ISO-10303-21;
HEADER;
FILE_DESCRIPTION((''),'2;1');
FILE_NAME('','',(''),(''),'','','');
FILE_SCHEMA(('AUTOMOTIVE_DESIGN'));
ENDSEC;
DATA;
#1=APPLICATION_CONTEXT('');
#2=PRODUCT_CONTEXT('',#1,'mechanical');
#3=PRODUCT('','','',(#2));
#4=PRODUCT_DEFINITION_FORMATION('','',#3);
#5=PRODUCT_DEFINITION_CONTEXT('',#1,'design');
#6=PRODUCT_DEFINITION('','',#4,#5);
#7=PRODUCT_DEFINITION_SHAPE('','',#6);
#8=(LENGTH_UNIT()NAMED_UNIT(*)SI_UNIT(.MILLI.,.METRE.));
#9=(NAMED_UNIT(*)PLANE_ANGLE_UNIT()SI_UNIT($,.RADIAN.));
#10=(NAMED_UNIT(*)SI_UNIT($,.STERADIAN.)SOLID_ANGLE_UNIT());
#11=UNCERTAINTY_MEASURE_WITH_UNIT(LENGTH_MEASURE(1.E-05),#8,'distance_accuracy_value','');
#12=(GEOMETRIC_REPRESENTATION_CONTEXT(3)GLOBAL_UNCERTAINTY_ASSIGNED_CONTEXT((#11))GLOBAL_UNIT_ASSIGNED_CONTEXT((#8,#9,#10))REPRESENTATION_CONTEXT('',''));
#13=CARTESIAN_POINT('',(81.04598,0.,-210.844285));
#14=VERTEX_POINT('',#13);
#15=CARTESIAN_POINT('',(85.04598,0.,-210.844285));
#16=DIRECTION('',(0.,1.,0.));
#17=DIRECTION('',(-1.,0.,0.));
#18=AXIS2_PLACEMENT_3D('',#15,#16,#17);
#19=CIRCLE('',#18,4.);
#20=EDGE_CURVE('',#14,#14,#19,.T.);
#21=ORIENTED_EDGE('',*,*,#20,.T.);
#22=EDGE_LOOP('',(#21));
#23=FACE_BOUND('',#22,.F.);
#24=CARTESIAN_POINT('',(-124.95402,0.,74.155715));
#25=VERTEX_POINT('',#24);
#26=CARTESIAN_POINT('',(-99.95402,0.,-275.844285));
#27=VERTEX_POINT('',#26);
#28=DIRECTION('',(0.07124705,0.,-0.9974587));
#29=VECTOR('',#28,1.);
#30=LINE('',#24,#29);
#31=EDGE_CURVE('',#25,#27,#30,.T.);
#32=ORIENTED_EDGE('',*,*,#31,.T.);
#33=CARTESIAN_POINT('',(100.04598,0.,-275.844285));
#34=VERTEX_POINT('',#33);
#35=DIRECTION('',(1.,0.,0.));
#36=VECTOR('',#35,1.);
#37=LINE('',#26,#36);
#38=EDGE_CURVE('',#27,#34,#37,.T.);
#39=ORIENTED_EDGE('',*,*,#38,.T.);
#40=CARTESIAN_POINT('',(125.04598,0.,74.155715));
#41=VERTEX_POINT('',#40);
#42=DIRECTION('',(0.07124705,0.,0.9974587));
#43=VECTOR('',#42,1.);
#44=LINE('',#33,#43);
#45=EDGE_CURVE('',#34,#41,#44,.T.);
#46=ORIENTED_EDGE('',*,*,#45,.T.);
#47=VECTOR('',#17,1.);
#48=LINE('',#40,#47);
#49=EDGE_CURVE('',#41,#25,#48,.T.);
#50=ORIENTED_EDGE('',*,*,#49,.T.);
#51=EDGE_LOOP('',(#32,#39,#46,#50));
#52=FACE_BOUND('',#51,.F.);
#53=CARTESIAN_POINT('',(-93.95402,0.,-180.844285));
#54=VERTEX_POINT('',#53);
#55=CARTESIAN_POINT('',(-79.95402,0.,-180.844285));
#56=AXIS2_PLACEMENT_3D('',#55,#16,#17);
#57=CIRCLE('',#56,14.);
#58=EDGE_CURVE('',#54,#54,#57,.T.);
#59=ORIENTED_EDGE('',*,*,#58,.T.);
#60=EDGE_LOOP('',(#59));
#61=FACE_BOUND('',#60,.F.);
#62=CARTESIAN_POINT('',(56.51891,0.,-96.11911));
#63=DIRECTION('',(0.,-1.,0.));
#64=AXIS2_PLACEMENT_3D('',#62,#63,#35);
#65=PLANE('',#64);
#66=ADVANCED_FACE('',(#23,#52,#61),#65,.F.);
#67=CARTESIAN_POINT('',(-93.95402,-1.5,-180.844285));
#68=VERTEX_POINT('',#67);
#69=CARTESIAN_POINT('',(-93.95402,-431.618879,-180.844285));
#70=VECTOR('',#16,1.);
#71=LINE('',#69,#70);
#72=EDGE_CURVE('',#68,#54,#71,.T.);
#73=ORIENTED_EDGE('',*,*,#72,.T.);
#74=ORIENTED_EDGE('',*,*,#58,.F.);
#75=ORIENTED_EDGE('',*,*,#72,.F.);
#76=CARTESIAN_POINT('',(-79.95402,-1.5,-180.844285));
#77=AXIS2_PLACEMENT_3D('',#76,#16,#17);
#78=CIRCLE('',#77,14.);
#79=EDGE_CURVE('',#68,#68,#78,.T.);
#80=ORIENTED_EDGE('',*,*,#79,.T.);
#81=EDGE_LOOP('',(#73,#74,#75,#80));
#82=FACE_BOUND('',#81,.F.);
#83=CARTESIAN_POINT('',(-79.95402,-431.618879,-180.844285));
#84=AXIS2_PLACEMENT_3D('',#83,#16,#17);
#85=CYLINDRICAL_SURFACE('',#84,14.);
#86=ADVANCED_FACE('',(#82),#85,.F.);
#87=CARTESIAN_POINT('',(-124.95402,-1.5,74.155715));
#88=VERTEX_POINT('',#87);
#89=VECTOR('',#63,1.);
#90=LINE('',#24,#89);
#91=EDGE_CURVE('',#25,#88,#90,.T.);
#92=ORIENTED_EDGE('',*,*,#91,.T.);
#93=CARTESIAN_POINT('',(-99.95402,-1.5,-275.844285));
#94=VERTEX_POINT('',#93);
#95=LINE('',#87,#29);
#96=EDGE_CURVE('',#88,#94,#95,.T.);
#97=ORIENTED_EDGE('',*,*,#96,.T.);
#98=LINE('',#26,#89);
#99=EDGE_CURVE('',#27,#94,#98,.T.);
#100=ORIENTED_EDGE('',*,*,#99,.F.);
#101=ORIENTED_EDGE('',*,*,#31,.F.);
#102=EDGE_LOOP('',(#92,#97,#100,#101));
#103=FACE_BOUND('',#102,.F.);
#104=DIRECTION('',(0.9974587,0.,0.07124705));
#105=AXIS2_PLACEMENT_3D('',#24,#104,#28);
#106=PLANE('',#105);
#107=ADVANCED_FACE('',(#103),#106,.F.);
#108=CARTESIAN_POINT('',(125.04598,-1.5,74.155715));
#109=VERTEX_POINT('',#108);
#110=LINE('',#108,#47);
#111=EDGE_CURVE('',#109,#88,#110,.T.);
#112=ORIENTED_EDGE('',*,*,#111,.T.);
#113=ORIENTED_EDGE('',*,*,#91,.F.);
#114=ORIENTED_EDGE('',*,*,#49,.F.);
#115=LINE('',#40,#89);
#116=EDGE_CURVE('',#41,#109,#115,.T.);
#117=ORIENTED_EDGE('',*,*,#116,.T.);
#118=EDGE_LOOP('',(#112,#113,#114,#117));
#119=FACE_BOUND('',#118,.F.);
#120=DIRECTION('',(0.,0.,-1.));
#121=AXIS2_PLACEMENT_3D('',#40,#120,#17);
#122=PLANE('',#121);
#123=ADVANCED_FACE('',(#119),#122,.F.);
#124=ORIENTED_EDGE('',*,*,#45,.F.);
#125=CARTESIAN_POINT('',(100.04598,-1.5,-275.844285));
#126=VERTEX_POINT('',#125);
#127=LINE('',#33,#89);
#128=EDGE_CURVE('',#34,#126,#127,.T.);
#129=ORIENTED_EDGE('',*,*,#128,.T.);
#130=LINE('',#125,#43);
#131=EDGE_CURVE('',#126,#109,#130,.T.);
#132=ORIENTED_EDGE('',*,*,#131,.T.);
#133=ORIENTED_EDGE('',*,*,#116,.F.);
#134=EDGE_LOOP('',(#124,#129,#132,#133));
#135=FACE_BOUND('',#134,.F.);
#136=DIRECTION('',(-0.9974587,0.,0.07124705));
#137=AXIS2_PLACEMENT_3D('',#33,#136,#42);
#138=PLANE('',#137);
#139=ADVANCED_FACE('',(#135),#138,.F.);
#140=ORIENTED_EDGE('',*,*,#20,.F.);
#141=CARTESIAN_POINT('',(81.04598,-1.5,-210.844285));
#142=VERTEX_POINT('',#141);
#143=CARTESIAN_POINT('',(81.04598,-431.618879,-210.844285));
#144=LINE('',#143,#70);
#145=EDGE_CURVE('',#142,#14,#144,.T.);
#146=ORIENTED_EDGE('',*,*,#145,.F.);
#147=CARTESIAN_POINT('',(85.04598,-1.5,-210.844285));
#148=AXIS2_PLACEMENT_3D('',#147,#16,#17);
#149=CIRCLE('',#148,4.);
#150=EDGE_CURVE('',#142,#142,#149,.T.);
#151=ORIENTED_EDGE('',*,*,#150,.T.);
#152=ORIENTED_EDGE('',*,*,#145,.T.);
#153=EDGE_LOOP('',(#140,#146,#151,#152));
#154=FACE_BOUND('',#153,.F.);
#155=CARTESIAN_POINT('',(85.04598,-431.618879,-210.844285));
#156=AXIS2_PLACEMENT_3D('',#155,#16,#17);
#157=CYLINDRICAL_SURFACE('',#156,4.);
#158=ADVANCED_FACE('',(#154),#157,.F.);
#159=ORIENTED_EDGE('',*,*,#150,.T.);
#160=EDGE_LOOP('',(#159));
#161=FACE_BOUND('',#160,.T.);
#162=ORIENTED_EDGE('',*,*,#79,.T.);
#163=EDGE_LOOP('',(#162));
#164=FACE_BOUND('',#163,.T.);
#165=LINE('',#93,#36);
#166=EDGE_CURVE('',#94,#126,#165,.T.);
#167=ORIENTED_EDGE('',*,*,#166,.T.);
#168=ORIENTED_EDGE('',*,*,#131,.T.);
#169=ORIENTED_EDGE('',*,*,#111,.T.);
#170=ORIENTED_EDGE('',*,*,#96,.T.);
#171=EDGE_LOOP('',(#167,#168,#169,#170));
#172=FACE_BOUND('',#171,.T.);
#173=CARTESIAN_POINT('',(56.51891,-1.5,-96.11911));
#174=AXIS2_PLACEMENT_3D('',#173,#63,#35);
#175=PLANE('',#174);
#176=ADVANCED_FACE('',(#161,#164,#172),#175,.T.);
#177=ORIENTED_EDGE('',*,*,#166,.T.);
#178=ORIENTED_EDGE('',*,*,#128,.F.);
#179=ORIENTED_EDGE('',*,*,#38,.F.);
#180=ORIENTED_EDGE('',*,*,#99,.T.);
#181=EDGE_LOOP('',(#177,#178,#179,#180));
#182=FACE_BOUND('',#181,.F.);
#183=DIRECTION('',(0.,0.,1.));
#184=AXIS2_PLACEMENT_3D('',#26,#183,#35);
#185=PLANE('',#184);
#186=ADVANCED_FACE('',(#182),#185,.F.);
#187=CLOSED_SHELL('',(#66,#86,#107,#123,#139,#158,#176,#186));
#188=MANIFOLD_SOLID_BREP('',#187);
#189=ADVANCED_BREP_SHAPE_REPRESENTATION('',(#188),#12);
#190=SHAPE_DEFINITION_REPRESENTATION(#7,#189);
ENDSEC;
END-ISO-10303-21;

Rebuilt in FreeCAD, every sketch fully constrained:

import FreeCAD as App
import Part
import Sketcher
from FreeCAD import Vector


def add_polygon(sketch, points):
    """Adds a closed chain of lines whose ends are joined by coincident constraints."""
    first, n = sketch.GeometryCount, len(points)
    for a, b in zip(points, points[1:] + points[:1]):
        sketch.addGeometry(Part.LineSegment(App.Vector(*a, 0), App.Vector(*b, 0)), False)
    for i in range(n):
        sketch.addConstraint(Sketcher.Constraint("Coincident", first + i, 2, first + (i + 1) % n, 1))

doc = App.newDocument("Part")
body = doc.addObject("PartDesign::Body", "Body")

# Sketch on XZ plane
sketch1 = body.newObject("Sketcher::SketchObject", "Sketch")
sketch1.AttachmentSupport = (doc.getObject("XZ_Plane"), [""])
sketch1.MapMode = "FlatFace"
add_polygon(sketch1, [(125, 74), (-125, 74), (-100, -276), (100, -276)])  # lines 0-3
sketch1.addConstraint([
    Sketcher.Constraint("Horizontal", 0),
    Sketcher.Constraint("Horizontal", 2),
    Sketcher.Constraint("Equal", 1, 3),
    Sketcher.Constraint("DistanceX", 0, 2, 0, 1, 250.0),
    Sketcher.Constraint("DistanceX", 2, 1, 2, 2, 200.0),
    Sketcher.Constraint("DistanceY", 1, 2, 0, 2, 350.0),
    Sketcher.Constraint("DistanceX", 0, 2, -1, 1, 124.95402),
    Sketcher.Constraint("DistanceY", -1, 1, 0, 2, 74.155715),
])
pad1 = body.newObject("PartDesign::Pad", "Pad")
pad1.Profile = sketch1
pad1.Length = 1.5

# Sketch on XZ plane
sketch2 = body.newObject("Sketcher::SketchObject", "Sketch001")
sketch2.AttachmentSupport = (doc.getObject("XZ_Plane"), [""])
sketch2.MapMode = "FlatFace"
sketch2.AttachmentOffset = App.Placement(Vector(0, 0, 1.5), App.Rotation())
sketch2.addGeometry(Part.Circle(Vector(-80, -181, 0), Vector(0, 0, 1), 14), False)
sketch2.addConstraint([
    Sketcher.Constraint("Diameter", 0, 28.0),
    Sketcher.Constraint("DistanceX", 0, 3, -1, 1, 79.95402),
    Sketcher.Constraint("DistanceY", 0, 3, -1, 1, 180.844285),
])
doc.recompute()
hole = body.newObject("PartDesign::Hole", "Hole")
hole.Profile = sketch2
hole.ThreadType = "None"
hole.Diameter = 28
hole.DepthType = "ThroughAll"

# Sketch on XZ plane
sketch3 = body.newObject("Sketcher::SketchObject", "Sketch002")
sketch3.AttachmentSupport = (doc.getObject("XZ_Plane"), [""])
sketch3.MapMode = "FlatFace"
sketch3.AttachmentOffset = App.Placement(Vector(0, 0, 1.5), App.Rotation())
sketch3.addGeometry(Part.Circle(Vector(85, -210.8, 0), Vector(0, 0, 1), 4), False)
sketch3.addConstraint([
    Sketcher.Constraint("Diameter", 0, 8.0),
    Sketcher.Constraint("DistanceX", -1, 1, 0, 3, 85.04598),
    Sketcher.Constraint("DistanceY", 0, 3, -1, 1, 210.844285),
])
doc.recompute()
hole2 = body.newObject("PartDesign::Hole", "Hole001")
hole2.Profile = sketch3
hole2.ThreadType = "None"
hole2.Diameter = 8
hole2.DepthType = "ThroughAll"

doc.recompute()
